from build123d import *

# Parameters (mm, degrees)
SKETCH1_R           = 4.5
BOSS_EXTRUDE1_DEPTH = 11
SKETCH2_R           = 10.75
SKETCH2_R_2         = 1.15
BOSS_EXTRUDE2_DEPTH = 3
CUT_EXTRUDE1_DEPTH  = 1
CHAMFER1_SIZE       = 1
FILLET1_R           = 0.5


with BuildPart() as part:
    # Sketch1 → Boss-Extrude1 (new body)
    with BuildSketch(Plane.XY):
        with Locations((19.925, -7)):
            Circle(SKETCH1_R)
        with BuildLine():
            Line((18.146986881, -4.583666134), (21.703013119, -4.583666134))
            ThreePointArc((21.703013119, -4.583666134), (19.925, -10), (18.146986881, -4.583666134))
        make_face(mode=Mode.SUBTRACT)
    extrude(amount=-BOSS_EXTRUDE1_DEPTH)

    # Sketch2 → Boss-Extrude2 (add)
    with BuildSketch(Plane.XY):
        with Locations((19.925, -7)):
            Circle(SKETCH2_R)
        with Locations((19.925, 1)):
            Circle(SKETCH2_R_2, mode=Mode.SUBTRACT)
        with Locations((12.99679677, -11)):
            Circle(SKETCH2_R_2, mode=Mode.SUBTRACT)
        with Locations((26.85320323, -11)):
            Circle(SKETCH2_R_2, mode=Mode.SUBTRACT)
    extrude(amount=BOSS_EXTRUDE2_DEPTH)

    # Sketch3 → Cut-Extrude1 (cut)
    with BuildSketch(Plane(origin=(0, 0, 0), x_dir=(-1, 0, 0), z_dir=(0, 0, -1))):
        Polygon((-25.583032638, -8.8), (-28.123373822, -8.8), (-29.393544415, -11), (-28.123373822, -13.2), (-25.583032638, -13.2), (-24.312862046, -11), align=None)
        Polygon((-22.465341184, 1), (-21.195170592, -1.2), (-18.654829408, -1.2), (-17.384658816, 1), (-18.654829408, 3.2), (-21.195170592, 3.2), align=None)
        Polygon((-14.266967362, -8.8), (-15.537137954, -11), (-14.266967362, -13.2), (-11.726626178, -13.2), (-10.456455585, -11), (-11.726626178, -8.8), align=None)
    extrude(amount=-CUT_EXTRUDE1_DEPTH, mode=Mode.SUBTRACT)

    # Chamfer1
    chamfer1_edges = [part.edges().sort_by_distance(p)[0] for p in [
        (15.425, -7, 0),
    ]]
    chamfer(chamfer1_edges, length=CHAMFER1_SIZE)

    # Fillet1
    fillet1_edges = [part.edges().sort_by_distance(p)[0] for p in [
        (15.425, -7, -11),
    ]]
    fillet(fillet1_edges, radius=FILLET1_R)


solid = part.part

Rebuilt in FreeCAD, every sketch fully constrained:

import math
import FreeCAD as App
import Part
import Sketcher
Q = App.Units.Quantity


def edges_at(feature, points):
    """Names of the edges that pass closest to the given points."""
    edges = feature.Shape.Edges
    near = lambda p: min(range(len(edges)), key=lambda i: edges[i].distToShape(Part.Vertex(*p))[0])
    return sorted({f"Edge{near(p) + 1}" for p in points})


def add_polygon(sketch, points):
    """Adds a closed chain of lines whose ends are joined by coincident constraints."""
    first, n = sketch.GeometryCount, len(points)
    for a, b in zip(points, points[1:] + points[:1]):
        sketch.addGeometry(Part.LineSegment(App.Vector(*a, 0), App.Vector(*b, 0)), False)
    for i in range(n):
        sketch.addConstraint(Sketcher.Constraint("Coincident", first + i, 2, first + (i + 1) % n, 1))

doc = App.newDocument("Part")
body = doc.addObject("PartDesign::Body", "Body")

sketch1 = body.newObject("Sketcher::SketchObject", "Sketch")
sketch1.AttachmentSupport = (doc.getObject("XY_Plane"), [""])
sketch1.MapMode = "FlatFace"
sketch1.addGeometry(Part.Circle(App.Vector(19.9, -7, 0), App.Vector(0, 0, 1), 4.5), False)
sketch1.addGeometry(Part.ArcOfCircle(Part.Circle(App.Vector(19.9, -7, 0), App.Vector(0, 0, 1), 3), math.radians(126), math.radians(414)), False)
sketch1.addGeometry(Part.LineSegment(App.Vector(18.1, -4.6, 0), App.Vector(21.7, -4.6, 0)), False)
sketch1.addConstraint(Sketcher.Constraint("Coincident", 1, 1, 2, 1))
sketch1.addConstraint(Sketcher.Constraint("Coincident", 2, 2, 1, 2))
sketch1.addConstraint(Sketcher.Constraint("Horizontal", 2))
sketch1.addConstraint(Sketcher.Constraint("Coincident", 1, 3, 0, 3))
sketch1.addConstraint(Sketcher.Constraint("Diameter", 0, 9.0))
sketch1.addConstraint(Sketcher.Constraint("Radius", 1, 3.0))
sketch1.addConstraint(Sketcher.Constraint("DistanceY", 0, 3, -1, 1, 7.0))
sketch1.addConstraint(Sketcher.Constraint("DistanceX", -1, 1, 0, 3, 19.925))
sketch1.addConstraint(Sketcher.Constraint("DistanceX", 2, 1, 2, 2, 3.556026))
pad1 = body.newObject("PartDesign::Pad", "Pad")
pad1.Profile = sketch1
pad1.Length = 11
pad1.Reversed = True

sketch2 = body.newObject("Sketcher::SketchObject", "Sketch001")
sketch2.AttachmentSupport = (doc.getObject("XY_Plane"), [""])
sketch2.MapMode = "FlatFace"
sketch2.addGeometry(Part.Circle(App.Vector(19.9, -7, 0), App.Vector(0, 0, 1), 10.8), False)
sketch2.addGeometry(Part.Circle(App.Vector(13, -11, 0), App.Vector(0, 0, 1), 1.1), False)
sketch2.addGeometry(Part.Circle(App.Vector(26.9, -11, 0), App.Vector(0, 0, 1), 1.1), False)
sketch2.addGeometry(Part.Circle(App.Vector(19.9, 1, 0), App.Vector(0, 0, 1), 1.1), False)
sketch2.addConstraint(Sketcher.Constraint("Equal", 1, 2))
sketch2.addConstraint(Sketcher.Constraint("Equal", 2, 3))
sketch2.addConstraint(Sketcher.Constraint("Horizontal", 1, 3, 2, 3))
sketch2.addConstraint(Sketcher.Constraint("Vertical", 0, 3, 3, 3))
sketch2.addConstraint(Sketcher.Constraint("Diameter", 0, 21.5))
sketch2.addConstraint(Sketcher.Constraint("Diameter", 1, 2.3))
sketch2.addConstraint(Sketcher.Constraint("DistanceY", 0, 3, -1, 1, 7.0))
sketch2.addConstraint(Sketcher.Constraint("DistanceY", 1, 3, -1, 1, 11.0))
sketch2.addConstraint(Sketcher.Constraint("DistanceY", -1, 1, 3, 3, 1.0))
sketch2.addConstraint(Sketcher.Constraint("DistanceX", -1, 1, 0, 3, 19.925))
sketch2.addConstraint(Sketcher.Constraint("DistanceX", -1, 1, 1, 3, 12.996797))
sketch2.addConstraint(Sketcher.Constraint("DistanceX", -1, 1, 2, 3, 26.853203))
pad2 = body.newObject("PartDesign::Pad", "Pad001")
pad2.Profile = sketch2
pad2.Length = 3

sketch3 = body.newObject("Sketcher::SketchObject", "Sketch002")
sketch3.AttachmentSupport = (doc.getObject("XY_Plane"), [""])
sketch3.MapMode = "FlatFace"
add_polygon(sketch3, [(25.6, -8.8), (28.1, -8.8), (29.4, -11), (28.1, -13.2), (25.6, -13.2), (24.3, -11)])
add_polygon(sketch3, [(22.5, 1), (21.2, -1.2), (18.7, -1.2), (17.4, 1), (18.7, 3.2), (21.2, 3.2)])
add_polygon(sketch3, [(14.3, -8.8), (15.5, -11), (14.3, -13.2), (11.7, -13.2), (10.5, -11), (11.7, -8.8)])
sketch3.addConstraint(Sketcher.Constraint("Horizontal", 0))
sketch3.addConstraint(Sketcher.Constraint("Horizontal", 3))
sketch3.addConstraint(Sketcher.Constraint("Horizontal", 7))
sketch3.addConstraint(Sketcher.Constraint("Horizontal", 10))
sketch3.addConstraint(Sketcher.Constraint("Horizontal", 14))
sketch3.addConstraint(Sketcher.Constraint("Horizontal", 17))
sketch3.addConstraint(Sketcher.Constraint("Parallel", 1, 4))
sketch3.addConstraint(Sketcher.Constraint("Parallel", 2, 5))
sketch3.addConstraint(Sketcher.Constraint("Parallel", 5, 6))
sketch3.addConstraint(Sketcher.Constraint("Parallel", 4, 8))
sketch3.addConstraint(Sketcher.Constraint("Parallel", 6, 9))
sketch3.addConstraint(Sketcher.Constraint("Parallel", 8, 11))
sketch3.addConstraint(Sketcher.Constraint("Parallel", 11, 12))
sketch3.addConstraint(Sketcher.Constraint("Parallel", 9, 13))
sketch3.addConstraint(Sketcher.Constraint("Parallel", 12, 15))
sketch3.addConstraint(Sketcher.Constraint("Parallel", 13, 16))
sketch3.addConstraint(Sketcher.Constraint("Horizontal", 1, 2, 4, 2))
sketch3.addConstraint(Sketcher.Constraint("Horizontal", 8, 2, 11, 2))
sketch3.addConstraint(Sketcher.Constraint("Horizontal", 4, 2, 12, 2))
sketch3.addConstraint(Sketcher.Constraint("Horizontal", 3, 2, 13, 2))
sketch3.addConstraint(Sketcher.Constraint("Horizontal", 12, 2, 15, 2))
sketch3.addConstraint(Sketcher.Constraint("Horizontal", 5, 2, 16, 2))
sketch3.addConstraint(Sketcher.Constraint("Vertical", 0, 2, 2, 2))
sketch3.addConstraint(Sketcher.Constraint("Vertical", 3, 2, 5, 2))
sketch3.addConstraint(Sketcher.Constraint("Vertical", 7, 2, 9, 2))
sketch3.addConstraint(Sketcher.Constraint("Equal", 3, 7))
sketch3.addConstraint(Sketcher.Constraint("Equal", 10, 14))
sketch3.addConstraint(Sketcher.Constraint("Equal", 5, 6))
sketch3.addConstraint(Sketcher.Constraint("Angle", 1, Q("-60 deg")))
sketch3.addConstraint(Sketcher.Constraint("DistanceY", 1, 2, -1, 1, 11.0))
sketch3.addConstraint(Sketcher.Constraint("DistanceY", -1, 1, 8, 2, 1.0))
sketch3.addConstraint(Sketcher.Constraint("DistanceY", 0, 2, -1, 1, 8.8))
sketch3.addConstraint(Sketcher.Constraint("DistanceX", 0, 1, 0, 2, 2.540341))
sketch3.addConstraint(Sketcher.Constraint("DistanceX", -1, 1, 6, 2, 21.195171))
sketch3.addConstraint(Sketcher.Constraint("DistanceX", 6, 2, 4, 2, 3.117691))
sketch3.addConstraint(Sketcher.Constraint("DistanceX", 12, 2, 7, 2, 3.117691))
pocket1 = body.newObject("PartDesign::Pocket", "Pocket")
pocket1.Profile = sketch3
pocket1.Length = 1
pocket1.Reversed = True
doc.recompute()

chamfer = body.newObject("PartDesign::Chamfer", "Chamfer")
chamfer.Base = (pocket1, edges_at(pocket1, [(15.425, -7, 0)]))
chamfer.Size = 1
doc.recompute()

fillet = body.newObject("PartDesign::Fillet", "Fillet")
fillet.Base = (chamfer, edges_at(chamfer, [(15.425, -7, -11)]))
fillet.Radius = 0.5

doc.recompute()
